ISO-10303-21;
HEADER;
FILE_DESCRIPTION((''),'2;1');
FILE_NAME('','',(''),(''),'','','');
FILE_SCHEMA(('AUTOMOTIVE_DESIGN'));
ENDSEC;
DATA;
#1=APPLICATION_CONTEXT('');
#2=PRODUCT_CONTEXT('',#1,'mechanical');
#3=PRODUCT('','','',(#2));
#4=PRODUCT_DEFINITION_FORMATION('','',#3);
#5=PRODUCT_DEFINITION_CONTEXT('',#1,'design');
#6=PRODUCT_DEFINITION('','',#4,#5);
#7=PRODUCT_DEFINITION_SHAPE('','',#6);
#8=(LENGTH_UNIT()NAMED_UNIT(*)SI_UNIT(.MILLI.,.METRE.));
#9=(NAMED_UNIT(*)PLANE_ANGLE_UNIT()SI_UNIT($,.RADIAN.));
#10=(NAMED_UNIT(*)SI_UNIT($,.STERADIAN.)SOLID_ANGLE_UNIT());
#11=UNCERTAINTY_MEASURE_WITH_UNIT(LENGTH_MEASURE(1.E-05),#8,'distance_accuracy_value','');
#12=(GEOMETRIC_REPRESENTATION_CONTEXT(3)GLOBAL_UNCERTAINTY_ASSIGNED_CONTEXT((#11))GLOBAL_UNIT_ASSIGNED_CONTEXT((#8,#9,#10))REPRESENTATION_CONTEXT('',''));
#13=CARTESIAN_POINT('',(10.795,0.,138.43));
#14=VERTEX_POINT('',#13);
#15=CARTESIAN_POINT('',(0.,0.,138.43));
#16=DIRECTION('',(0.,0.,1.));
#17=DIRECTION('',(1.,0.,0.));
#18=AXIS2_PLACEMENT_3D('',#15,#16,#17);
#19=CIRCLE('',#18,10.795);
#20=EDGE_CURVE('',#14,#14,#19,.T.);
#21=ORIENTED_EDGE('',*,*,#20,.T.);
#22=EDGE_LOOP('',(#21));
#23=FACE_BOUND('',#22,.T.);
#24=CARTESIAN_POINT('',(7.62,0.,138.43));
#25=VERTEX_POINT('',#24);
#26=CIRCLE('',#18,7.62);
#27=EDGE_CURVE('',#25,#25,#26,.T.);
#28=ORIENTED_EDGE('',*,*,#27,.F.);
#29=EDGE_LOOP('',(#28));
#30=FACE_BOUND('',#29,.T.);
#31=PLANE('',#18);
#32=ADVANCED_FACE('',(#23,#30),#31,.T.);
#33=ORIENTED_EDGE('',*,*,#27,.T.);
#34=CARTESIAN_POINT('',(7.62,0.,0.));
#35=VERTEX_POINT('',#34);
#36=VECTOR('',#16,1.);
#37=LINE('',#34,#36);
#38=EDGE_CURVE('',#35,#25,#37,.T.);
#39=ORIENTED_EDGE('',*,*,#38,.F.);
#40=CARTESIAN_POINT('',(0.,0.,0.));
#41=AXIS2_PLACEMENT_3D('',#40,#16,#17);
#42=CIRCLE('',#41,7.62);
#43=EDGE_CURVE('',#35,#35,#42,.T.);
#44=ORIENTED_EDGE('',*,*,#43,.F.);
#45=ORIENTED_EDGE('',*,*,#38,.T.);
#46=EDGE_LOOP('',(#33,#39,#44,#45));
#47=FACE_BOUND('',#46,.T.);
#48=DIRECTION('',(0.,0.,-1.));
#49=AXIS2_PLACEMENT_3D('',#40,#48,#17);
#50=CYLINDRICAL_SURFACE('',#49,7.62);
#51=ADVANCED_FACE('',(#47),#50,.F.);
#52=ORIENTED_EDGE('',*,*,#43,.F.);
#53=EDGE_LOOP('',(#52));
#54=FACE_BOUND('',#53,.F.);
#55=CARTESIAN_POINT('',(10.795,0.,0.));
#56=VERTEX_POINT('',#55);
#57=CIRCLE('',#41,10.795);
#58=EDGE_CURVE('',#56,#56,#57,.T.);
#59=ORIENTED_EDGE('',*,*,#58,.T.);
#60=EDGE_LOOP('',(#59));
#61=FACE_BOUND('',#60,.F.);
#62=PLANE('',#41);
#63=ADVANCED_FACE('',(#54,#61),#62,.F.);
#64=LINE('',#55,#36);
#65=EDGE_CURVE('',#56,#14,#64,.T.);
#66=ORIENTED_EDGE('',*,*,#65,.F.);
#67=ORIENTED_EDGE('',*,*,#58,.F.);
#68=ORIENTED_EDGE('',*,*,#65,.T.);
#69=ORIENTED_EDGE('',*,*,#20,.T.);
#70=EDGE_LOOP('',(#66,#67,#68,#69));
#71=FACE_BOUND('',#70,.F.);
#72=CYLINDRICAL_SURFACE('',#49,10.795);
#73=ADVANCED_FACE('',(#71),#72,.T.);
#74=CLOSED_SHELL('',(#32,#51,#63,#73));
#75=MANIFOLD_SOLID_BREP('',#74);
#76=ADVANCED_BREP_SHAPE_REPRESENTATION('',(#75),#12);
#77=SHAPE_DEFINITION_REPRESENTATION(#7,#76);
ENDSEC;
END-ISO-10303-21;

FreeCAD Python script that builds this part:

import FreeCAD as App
import Part
import Sketcher
from FreeCAD import Vector
Q = App.Units.Quantity

doc = App.newDocument("Part")
body = doc.addObject("PartDesign::Body", "Body")

sketch1 = doc.addObject("Sketcher::SketchObject", "Sketch")
body.addObject(sketch1)
sketch1.AttachmentSupport = (doc.XY_Plane, [""])
sketch1.MapMode = "FlatFace"
sketch1.addGeometry([
    Part.Circle(Vector(0, 0, 0), Vector(0, 0, 1), 11),
    Part.Circle(Vector(0, 0, 0), Vector(0, 0, 1), 8),
], False)
sketch1.addConstraint([
    Sketcher.Constraint("Coincident", 0, 3, -1, 1),
    Sketcher.Constraint("Coincident", 1, 3, -1, 1),
    Sketcher.Constraint("Diameter", 1, Q("0.6 in")),
    Sketcher.Constraint("Diameter", 0, Q("0.85 in")),
])
pad1 = doc.addObject("PartDesign::Pad", "Pad")
body.addObject(pad1)
pad1.Profile = sketch1
pad1.Length = Q("5.45 in")

doc.recompute()
